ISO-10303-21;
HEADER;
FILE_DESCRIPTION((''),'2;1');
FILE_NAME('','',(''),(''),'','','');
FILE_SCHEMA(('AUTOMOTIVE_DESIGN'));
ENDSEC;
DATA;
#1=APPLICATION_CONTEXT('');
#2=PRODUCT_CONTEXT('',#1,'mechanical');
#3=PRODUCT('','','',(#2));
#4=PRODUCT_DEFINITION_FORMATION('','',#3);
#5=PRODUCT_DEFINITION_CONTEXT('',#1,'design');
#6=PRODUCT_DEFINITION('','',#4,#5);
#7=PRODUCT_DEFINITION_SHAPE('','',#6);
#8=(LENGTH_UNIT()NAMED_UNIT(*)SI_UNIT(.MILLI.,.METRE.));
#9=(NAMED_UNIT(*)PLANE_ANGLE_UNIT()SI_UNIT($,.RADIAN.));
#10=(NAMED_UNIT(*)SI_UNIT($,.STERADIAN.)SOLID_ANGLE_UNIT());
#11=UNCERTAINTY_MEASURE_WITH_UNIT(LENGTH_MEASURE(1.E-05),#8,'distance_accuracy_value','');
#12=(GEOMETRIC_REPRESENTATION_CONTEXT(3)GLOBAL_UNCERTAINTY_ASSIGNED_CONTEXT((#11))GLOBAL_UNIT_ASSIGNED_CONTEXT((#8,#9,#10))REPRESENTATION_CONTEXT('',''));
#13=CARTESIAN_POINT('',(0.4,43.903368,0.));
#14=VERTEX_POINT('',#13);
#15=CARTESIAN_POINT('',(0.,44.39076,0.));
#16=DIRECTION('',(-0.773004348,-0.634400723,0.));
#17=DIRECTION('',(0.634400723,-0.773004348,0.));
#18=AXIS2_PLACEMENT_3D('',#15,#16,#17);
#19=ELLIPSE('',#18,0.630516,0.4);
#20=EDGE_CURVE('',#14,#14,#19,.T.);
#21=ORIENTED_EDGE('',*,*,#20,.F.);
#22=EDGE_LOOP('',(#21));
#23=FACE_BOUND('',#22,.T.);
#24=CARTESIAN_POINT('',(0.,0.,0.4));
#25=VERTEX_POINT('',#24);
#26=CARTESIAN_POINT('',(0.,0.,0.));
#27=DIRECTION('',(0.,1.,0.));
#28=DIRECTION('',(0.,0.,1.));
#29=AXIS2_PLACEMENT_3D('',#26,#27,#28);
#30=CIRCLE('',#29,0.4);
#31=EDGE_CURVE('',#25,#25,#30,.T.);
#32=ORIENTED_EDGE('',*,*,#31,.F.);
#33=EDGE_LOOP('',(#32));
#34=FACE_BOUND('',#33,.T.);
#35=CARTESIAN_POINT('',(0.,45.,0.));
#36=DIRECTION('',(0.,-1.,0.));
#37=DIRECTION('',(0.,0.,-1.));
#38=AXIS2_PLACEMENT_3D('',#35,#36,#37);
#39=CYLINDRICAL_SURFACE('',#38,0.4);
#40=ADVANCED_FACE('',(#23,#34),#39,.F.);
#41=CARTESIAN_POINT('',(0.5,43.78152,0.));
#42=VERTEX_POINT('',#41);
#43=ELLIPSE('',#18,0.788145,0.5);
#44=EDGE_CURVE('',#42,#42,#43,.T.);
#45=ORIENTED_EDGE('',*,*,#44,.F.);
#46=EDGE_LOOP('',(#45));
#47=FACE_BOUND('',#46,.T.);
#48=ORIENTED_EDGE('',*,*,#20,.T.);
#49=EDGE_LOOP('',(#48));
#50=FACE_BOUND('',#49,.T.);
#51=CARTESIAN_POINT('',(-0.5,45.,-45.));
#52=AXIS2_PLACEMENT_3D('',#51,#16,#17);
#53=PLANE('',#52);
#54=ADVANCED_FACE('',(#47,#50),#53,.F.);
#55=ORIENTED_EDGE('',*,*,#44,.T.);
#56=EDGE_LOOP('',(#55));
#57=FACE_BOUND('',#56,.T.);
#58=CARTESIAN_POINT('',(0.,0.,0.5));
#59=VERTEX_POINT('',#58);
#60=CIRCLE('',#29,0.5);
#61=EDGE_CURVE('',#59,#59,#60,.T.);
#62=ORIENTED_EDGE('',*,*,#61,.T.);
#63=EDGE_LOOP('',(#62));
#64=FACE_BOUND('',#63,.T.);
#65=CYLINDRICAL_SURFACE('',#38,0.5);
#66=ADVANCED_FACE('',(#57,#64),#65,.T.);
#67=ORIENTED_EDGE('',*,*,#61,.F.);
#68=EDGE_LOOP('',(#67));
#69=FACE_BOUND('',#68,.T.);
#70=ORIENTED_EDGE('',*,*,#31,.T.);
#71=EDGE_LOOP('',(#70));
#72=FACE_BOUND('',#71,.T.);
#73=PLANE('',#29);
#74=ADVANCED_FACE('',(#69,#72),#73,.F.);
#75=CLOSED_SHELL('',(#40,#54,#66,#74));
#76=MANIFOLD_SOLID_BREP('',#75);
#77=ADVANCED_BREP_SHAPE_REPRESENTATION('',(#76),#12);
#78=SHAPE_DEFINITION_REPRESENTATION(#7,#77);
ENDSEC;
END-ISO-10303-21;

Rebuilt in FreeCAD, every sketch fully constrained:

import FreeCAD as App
import Part
import Sketcher
from FreeCAD import Vector


def faces_at(feature, points):
    """Names of the faces that lie closest to the given points."""
    faces = feature.Shape.Faces
    near = lambda p: min(range(len(faces)), key=lambda i: faces[i].distToShape(Part.Vertex(*p))[0])
    return sorted({f"Face{near(p) + 1}" for p in points})

doc = App.newDocument("Part")
params = doc.addObject("Spreadsheet::Sheet", "Params")
for row, (alias, value) in enumerate([
    ("sketch1_diameter", "1 mm"),
    ("pad1_length", "45 mm"),
    ("thickness_wall", "0.1 mm"),
], start=1):
    params.set(f"A{row}", alias)
    params.set(f"B{row}", "=" + value)
    params.setAlias(f"B{row}", alias)

body = doc.addObject("PartDesign::Body", "Body")

sketch1 = body.newObject("Sketcher::SketchObject", "Sketch")
sketch1.AttachmentSupport = (doc.getObject("XZ_Plane"), [""])
sketch1.MapMode = "FlatFace"
sketch1.addGeometry(Part.Circle(Vector(0, 0, 0), Vector(0, 0, 1), 0.5), False)
sketch1.addConstraint(Sketcher.Constraint("Coincident", 0, 3, -1, 1))
sketch1.addConstraint(Sketcher.Constraint("Diameter", 0, 1.0))
sketch1.setExpression("Constraints[1]", "Params.sketch1_diameter")
pad1 = body.newObject("PartDesign::Pad", "Pad")
pad1.Profile = sketch1
pad1.setExpression("Length", "Params.pad1_length")
pad1.Reversed = True
doc.recompute()

thickness = body.newObject("PartDesign::Thickness", "Thickness")
thickness.Base = (pad1, faces_at(pad1, [(0, 45, 0), (0, 0, 0)]))
thickness.setExpression("Value", "Params.thickness_wall")
thickness.Reversed = True
thickness.Join = "Intersection"

sketch2 = body.newObject("Sketcher::SketchObject", "Sketch001")
sketch2.AttachmentSupport = (doc.getObject("XY_Plane"), [""])
sketch2.MapMode = "FlatFace"
sketch2.addGeometry(Part.LineSegment(Vector(-0.5, 45, 0), Vector(4, 39.6, 0)), False)
sketch2.addGeometry(Part.LineSegment(Vector(4, 39.6, 0), Vector(4, 46, 0)), False)
sketch2.addGeometry(Part.LineSegment(Vector(4, 46, 0), Vector(-0.5, 45, 0)), False)
sketch2.addConstraint(Sketcher.Constraint("Coincident", 0, 2, 1, 1))
sketch2.addConstraint(Sketcher.Constraint("Coincident", 1, 2, 2, 1))
sketch2.addConstraint(Sketcher.Constraint("Coincident", 2, 2, 0, 1))
sketch2.addConstraint(Sketcher.Constraint("Vertical", 1))
sketch2.addConstraint(Sketcher.Constraint("DistanceY", -1, 1, 2, 2, 45.0))
sketch2.addConstraint(Sketcher.Constraint("DistanceX", 2, 2, -1, 1, 0.5))
sketch2.addConstraint(Sketcher.Constraint("DistanceY", 1, 1, 1, 2, 6.488639))
sketch2.addConstraint(Sketcher.Constraint("Distance", 0, 7.04095))
sketch2.addConstraint(Sketcher.Constraint("Distance", 2, 4.587611))
pocket1 = body.newObject("PartDesign::Pocket", "Pocket")
pocket1.Profile = sketch2
pocket1.Type = "ThroughAll"
pocket1.Midplane = True

doc.recompute()
